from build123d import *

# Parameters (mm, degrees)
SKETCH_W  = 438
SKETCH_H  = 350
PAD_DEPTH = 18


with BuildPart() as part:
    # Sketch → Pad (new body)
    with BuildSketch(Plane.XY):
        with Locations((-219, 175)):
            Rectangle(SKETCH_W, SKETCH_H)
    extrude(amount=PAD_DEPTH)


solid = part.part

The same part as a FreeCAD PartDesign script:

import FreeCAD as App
import Part
import Sketcher

doc = App.newDocument("Part")
params = doc.addObject("Spreadsheet::Sheet", "Params")
for row, (alias, value) in enumerate([
    ("sketch1_width", "438 mm"),
    ("sketch1_height", "350 mm"),
    ("pad1_length", "18 mm"),
], start=1):
    params.set(f"A{row}", alias)
    params.set(f"B{row}", "=" + value)
    params.setAlias(f"B{row}", alias)

body = doc.addObject("PartDesign::Body", "Body")

# Sketch on XY plane
sketch1 = body.newObject("Sketcher::SketchObject", "Sketch")
sketch1.AttachmentSupport = (doc.getObject("XY_Plane"), [""])
sketch1.MapMode = "FlatFace"
sketch1.addGeometry(Part.LineSegment(App.Vector(-438, 350, 0), App.Vector(-438, 0, 0)), False)
sketch1.addGeometry(Part.LineSegment(App.Vector(-438, 0, 0), App.Vector(0, 0, 0)), False)
sketch1.addGeometry(Part.LineSegment(App.Vector(0, 0, 0), App.Vector(0, 350, 0)), False)
sketch1.addGeometry(Part.LineSegment(App.Vector(0, 350, 0), App.Vector(-438, 350, 0)), False)
sketch1.addConstraint(Sketcher.Constraint("Coincident", 0, 2, 1, 1))
sketch1.addConstraint(Sketcher.Constraint("Coincident", 1, 2, 2, 1))
sketch1.addConstraint(Sketcher.Constraint("Coincident", 2, 2, 3, 1))
sketch1.addConstraint(Sketcher.Constraint("Coincident", 3, 2, 0, 1))
sketch1.addConstraint(Sketcher.Constraint("Vertical", 0))
sketch1.addConstraint(Sketcher.Constraint("Horizontal", 1))
sketch1.addConstraint(Sketcher.Constraint("Vertical", 2))
sketch1.addConstraint(Sketcher.Constraint("Horizontal", 3))
sketch1.addConstraint(Sketcher.Constraint("Coincident", 1, 2, -1, 1))
sketch1.addConstraint(Sketcher.Constraint("DistanceX", 1, 1, 1, 2, 438.0))
sketch1.addConstraint(Sketcher.Constraint("DistanceY", 0, 2, 0, 1, 350.0))
sketch1.setExpression("Constraints[9]", "Params.sketch1_width")
sketch1.setExpression("Constraints[10]", "Params.sketch1_height")
pad1 = body.newObject("PartDesign::Pad", "Pad")
pad1.Profile = sketch1
pad1.setExpression("Length", "Params.pad1_length")

doc.recompute()
